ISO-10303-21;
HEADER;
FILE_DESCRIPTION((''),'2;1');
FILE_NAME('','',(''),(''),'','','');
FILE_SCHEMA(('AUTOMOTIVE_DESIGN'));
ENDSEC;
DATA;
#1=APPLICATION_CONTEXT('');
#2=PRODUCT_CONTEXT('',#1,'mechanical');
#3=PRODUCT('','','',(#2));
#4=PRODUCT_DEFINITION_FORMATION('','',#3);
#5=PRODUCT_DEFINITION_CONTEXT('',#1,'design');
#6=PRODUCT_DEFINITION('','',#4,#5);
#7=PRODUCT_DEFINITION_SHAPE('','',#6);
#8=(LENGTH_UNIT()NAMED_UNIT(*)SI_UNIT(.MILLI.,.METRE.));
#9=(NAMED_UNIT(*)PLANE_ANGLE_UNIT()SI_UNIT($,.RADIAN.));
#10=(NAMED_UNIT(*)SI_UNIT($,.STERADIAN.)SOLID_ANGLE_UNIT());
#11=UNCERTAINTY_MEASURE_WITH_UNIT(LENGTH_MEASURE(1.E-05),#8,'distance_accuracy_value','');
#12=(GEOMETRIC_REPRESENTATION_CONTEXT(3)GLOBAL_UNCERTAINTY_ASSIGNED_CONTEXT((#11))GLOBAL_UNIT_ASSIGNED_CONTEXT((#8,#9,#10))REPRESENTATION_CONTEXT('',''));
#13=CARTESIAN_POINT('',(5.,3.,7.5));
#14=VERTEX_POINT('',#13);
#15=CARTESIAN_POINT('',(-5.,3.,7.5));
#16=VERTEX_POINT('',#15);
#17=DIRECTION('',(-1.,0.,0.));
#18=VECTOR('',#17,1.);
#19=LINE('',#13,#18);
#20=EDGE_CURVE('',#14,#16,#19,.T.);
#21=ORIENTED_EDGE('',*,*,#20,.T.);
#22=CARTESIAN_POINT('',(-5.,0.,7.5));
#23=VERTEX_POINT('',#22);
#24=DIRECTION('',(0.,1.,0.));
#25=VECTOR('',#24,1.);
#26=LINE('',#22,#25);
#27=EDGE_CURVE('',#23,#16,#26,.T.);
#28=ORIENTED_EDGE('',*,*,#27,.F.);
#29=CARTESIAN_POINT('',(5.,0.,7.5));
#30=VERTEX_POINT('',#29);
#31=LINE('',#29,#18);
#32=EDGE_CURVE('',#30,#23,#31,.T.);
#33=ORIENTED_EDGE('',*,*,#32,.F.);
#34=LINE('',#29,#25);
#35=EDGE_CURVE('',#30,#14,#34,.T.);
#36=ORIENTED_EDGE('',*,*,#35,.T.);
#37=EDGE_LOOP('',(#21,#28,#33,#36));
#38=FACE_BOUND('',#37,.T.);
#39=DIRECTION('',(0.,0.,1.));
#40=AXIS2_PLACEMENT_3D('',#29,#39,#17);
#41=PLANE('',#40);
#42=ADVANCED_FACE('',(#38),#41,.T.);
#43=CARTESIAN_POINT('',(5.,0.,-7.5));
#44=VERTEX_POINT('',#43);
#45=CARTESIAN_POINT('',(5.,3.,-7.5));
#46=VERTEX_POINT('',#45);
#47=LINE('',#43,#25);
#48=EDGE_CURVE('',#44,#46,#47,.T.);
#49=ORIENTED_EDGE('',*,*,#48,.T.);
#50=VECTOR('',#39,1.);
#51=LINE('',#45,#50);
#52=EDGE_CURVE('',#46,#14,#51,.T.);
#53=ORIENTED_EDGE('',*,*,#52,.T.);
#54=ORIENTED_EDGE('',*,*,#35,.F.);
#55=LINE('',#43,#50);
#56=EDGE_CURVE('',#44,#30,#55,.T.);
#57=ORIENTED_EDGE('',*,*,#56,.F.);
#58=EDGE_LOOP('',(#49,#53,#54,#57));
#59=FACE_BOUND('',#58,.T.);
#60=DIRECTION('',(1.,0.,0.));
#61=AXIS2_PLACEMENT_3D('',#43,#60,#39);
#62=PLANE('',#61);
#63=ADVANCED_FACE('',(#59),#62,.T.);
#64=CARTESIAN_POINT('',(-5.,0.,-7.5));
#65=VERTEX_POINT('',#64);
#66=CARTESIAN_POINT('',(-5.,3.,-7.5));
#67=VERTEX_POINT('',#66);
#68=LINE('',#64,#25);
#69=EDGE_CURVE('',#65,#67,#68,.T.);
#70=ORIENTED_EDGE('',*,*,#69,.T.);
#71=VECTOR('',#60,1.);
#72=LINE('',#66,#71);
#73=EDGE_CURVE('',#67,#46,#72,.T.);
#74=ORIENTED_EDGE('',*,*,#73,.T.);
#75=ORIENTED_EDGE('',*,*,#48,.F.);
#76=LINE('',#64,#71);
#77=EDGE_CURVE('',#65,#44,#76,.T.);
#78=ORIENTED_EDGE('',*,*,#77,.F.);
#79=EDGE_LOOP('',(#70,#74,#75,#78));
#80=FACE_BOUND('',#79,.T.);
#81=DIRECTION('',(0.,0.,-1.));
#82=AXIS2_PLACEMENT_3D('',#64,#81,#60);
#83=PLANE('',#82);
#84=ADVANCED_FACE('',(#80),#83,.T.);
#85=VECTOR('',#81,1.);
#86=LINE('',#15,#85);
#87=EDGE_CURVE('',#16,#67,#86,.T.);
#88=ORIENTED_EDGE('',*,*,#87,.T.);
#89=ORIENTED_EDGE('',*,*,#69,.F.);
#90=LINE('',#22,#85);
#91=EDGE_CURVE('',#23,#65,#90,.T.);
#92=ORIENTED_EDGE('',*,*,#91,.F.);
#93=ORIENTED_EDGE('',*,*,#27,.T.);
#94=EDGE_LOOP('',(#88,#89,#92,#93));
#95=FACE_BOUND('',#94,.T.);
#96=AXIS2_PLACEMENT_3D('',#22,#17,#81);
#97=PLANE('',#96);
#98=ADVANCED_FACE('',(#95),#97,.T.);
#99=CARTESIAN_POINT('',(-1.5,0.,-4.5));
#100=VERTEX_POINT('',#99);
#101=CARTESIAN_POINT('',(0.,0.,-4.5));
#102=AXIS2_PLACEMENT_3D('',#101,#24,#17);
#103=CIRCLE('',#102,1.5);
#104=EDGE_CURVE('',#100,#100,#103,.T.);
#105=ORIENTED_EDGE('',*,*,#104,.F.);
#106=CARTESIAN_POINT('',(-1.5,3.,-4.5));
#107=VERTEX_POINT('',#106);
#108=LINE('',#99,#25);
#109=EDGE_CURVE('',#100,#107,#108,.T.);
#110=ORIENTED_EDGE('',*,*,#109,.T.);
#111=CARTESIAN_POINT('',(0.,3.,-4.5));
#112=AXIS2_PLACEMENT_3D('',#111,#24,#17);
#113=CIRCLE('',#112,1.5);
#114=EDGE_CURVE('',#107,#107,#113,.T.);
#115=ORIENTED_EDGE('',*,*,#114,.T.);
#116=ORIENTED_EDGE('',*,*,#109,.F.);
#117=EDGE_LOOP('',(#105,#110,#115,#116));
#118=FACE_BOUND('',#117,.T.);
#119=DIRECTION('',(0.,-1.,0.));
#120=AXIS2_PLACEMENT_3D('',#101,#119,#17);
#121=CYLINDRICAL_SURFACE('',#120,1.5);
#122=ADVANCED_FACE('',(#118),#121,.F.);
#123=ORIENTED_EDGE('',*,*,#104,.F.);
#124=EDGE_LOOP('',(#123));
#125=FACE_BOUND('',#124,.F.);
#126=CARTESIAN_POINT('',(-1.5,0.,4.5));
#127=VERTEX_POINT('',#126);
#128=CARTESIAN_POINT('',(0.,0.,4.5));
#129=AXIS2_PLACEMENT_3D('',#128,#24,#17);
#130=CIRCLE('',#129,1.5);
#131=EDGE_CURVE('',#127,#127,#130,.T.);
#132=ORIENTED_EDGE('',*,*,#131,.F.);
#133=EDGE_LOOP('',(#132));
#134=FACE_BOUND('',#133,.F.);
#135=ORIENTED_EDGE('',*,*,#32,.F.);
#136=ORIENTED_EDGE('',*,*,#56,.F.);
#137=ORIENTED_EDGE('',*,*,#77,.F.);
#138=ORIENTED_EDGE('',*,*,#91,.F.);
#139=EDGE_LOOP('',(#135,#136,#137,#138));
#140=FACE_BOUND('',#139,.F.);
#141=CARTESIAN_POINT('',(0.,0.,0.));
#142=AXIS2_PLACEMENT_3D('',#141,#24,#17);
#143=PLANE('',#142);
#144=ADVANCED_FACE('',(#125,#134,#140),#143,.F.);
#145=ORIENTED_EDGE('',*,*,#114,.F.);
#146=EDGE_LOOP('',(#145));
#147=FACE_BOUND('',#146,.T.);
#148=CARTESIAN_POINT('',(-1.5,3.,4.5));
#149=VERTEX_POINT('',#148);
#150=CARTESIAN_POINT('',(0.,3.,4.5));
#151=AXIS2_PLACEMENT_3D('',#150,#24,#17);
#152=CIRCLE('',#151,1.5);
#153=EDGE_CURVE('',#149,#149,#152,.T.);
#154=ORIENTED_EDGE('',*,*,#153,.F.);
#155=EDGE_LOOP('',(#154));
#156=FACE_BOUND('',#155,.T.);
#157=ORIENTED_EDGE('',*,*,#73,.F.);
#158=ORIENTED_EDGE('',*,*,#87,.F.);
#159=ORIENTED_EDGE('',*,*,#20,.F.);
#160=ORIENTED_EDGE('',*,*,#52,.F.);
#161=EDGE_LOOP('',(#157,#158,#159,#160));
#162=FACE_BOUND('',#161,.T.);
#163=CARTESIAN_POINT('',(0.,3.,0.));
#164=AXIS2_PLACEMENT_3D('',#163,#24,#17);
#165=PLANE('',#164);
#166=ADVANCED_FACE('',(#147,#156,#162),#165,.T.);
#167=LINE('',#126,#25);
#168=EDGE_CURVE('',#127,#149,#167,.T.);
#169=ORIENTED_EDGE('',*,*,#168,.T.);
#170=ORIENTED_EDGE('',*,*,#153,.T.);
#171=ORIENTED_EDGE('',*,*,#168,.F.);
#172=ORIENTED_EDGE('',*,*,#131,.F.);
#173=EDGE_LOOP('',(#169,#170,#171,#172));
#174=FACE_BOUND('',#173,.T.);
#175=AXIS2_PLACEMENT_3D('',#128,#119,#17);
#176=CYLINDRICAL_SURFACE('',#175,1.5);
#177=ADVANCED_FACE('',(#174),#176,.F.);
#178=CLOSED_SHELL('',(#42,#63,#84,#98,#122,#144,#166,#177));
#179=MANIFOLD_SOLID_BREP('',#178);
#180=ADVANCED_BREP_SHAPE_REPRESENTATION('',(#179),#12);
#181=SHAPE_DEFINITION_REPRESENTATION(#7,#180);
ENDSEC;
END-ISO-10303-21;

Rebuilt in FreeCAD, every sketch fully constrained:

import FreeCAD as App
import Part
import Sketcher

doc = App.newDocument("Part")
body = doc.addObject("PartDesign::Body", "Body")

# Sketch on XZ plane
sketch1 = body.newObject("Sketcher::SketchObject", "Sketch")
sketch1.AttachmentSupport = (doc.getObject("XZ_Plane"), [""])
sketch1.MapMode = "FlatFace"
sketch1.addGeometry([
    Part.LineSegment(App.Vector(5, -7.5, 0), App.Vector(-5, -7.5, 0)),  # 0
    Part.LineSegment(App.Vector(-5, -7.5, 0), App.Vector(-5, 7.5, 0)),  # 1
    Part.LineSegment(App.Vector(-5, 7.5, 0), App.Vector(5, 7.5, 0)),  # 2
    Part.LineSegment(App.Vector(5, 7.5, 0), App.Vector(5, -7.5, 0)),  # 3
    Part.Circle(App.Vector(0, -4.5, 0), App.Vector(0, 0, 1), 1.5),  # 4
    Part.Circle(App.Vector(0, 4.5, 0), App.Vector(0, 0, 1), 1.5),  # 5
], False)
sketch1.addConstraint([
    Sketcher.Constraint("Coincident", 0, 2, 1, 1),
    Sketcher.Constraint("Coincident", 1, 2, 2, 1),
    Sketcher.Constraint("Coincident", 2, 2, 3, 1),
    Sketcher.Constraint("Coincident", 3, 2, 0, 1),
    Sketcher.Constraint("Horizontal", 0),
    Sketcher.Constraint("Vertical", 1),
    Sketcher.Constraint("Horizontal", 2),
    Sketcher.Constraint("Vertical", 3),
    Sketcher.Constraint("Equal", 4, 5),
    Sketcher.Constraint("Symmetric", 4, 3, 5, 3, -1, 1),
    Sketcher.Constraint("Symmetric", 0, 2, 2, 2, -1, 1),
    Sketcher.Constraint("PointOnObject", 4, 3, -2),
    Sketcher.Constraint("Diameter", 4, 3.0),
    Sketcher.Constraint("DistanceX", 0, 2, 0, 1, 10.0),
    Sketcher.Constraint("DistanceY", 1, 1, 1, 2, 15.0),
    Sketcher.Constraint("DistanceY", 4, 3, 5, 3, 9.0),
])
pad1 = body.newObject("PartDesign::Pad", "Pad")
pad1.Profile = sketch1
pad1.Length = 3
pad1.Reversed = True

doc.recompute()
